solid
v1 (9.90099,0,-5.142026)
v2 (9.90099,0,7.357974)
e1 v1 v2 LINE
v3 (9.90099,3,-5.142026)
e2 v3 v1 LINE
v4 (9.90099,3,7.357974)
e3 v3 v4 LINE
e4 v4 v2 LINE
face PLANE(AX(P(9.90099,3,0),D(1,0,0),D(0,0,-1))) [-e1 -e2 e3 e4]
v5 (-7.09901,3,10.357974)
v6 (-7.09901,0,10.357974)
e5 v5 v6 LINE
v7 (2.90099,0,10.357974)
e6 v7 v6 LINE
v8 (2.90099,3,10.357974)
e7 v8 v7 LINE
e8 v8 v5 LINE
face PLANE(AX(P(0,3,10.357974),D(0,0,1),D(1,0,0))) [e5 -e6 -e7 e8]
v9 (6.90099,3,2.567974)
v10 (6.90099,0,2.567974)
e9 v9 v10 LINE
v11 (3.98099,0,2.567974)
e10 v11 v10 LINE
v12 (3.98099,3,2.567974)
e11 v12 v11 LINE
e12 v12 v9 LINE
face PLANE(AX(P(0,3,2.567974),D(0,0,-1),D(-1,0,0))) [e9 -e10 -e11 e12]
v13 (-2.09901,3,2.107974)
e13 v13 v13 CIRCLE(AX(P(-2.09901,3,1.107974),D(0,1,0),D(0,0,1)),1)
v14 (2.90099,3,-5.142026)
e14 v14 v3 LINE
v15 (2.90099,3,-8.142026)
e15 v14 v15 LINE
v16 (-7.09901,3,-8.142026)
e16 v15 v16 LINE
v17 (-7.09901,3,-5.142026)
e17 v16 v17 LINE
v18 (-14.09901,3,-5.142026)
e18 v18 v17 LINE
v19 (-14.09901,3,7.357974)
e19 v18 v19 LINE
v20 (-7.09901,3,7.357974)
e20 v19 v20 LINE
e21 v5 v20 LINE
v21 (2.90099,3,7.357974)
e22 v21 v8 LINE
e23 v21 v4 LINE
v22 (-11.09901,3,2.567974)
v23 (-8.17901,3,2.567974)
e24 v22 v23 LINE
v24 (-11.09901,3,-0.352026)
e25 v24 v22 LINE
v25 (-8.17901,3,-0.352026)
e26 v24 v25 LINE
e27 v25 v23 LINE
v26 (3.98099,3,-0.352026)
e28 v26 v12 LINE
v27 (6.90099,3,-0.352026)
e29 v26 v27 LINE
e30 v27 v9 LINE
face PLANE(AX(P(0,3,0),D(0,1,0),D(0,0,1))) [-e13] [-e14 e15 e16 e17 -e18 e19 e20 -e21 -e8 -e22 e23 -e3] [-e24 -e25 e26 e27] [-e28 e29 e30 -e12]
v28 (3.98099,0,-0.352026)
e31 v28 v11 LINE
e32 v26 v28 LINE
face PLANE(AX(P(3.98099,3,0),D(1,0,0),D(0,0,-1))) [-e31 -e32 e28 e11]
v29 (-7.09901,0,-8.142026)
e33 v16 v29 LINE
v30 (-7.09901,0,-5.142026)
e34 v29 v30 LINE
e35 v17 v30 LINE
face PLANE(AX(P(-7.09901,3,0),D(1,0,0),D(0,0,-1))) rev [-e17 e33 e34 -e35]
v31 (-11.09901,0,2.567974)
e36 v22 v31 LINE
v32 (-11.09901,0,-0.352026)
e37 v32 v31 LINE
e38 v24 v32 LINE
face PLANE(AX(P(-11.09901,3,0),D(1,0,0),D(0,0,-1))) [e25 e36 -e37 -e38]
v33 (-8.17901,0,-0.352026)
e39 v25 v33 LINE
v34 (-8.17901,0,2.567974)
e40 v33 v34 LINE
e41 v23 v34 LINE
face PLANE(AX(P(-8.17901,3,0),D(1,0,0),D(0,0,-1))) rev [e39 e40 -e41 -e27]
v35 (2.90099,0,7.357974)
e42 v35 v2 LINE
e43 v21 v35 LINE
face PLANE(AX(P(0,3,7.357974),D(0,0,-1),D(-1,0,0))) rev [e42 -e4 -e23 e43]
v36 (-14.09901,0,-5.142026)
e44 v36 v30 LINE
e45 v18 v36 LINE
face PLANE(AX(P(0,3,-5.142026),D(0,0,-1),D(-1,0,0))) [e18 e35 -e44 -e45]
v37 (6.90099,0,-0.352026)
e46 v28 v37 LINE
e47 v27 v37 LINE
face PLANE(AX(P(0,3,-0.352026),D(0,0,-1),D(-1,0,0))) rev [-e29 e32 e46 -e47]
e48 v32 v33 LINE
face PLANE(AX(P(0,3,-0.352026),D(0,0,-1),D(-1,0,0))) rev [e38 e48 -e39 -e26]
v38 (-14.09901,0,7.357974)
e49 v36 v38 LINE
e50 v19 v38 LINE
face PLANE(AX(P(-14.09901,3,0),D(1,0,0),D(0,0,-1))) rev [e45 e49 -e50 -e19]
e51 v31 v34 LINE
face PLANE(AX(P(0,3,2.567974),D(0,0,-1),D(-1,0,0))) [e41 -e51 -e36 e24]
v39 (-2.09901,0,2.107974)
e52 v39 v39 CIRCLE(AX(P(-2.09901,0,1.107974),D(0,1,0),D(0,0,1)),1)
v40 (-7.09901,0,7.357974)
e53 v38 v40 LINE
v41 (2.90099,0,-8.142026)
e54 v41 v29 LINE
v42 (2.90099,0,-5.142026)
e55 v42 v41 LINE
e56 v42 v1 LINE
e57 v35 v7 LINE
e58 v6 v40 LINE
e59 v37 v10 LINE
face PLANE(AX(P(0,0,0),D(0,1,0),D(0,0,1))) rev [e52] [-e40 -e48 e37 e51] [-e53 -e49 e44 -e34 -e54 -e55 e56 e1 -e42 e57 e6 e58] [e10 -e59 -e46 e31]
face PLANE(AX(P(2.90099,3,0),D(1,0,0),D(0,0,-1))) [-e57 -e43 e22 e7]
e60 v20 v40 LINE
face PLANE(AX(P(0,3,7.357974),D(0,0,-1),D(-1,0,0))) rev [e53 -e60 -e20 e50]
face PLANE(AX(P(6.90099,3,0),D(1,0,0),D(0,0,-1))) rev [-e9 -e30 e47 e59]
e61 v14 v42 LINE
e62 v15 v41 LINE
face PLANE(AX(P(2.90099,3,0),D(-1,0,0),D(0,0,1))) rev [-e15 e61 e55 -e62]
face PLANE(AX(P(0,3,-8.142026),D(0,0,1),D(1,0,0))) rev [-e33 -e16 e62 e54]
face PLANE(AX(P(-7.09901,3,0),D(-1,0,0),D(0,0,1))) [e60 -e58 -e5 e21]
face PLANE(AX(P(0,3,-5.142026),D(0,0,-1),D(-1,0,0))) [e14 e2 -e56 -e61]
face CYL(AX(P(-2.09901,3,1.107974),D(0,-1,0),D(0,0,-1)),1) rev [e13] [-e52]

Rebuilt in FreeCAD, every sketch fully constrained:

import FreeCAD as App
import Part
import Sketcher

V = App.Vector

doc = App.newDocument("Part")
params = doc.addObject("Spreadsheet::Sheet", "Params")
for row, (alias, value) in enumerate([
    ("sketch1_diameter", "2 mm"),
    ("sketch1_width", "7 mm"),
    ("sketch1_width2", "10 mm"),
    ("sketch1_height", "3 mm"),
    ("sketch1_height2", "12.5 mm"),
    ("pad1_length", "3 mm"),
], start=1):
    params.set(f"A{row}", alias)
    params.set(f"B{row}", "=" + value)
    params.setAlias(f"B{row}", alias)

body = doc.addObject("PartDesign::Body", "Body")

# Sketch on XZ plane
sketch1 = doc.addObject("Sketcher::SketchObject", "Sketch")
body.addObject(sketch1)
sketch1.AttachmentSupport = (doc.XZ_Plane, [""])
sketch1.MapMode = "FlatFace"
sketch1.addGeometry(Part.LineSegment(V(9.9, 7.4, 0), V(9.9, -5.1, 0)), False)
sketch1.addGeometry(Part.LineSegment(V(9.9, -5.1, 0), V(2.9, -5.1, 0)), False)
sketch1.addGeometry(Part.LineSegment(V(2.9, -5.1, 0), V(2.9, -8.1, 0)), False)
sketch1.addGeometry(Part.LineSegment(V(2.9, -8.1, 0), V(-7.1, -8.1, 0)), False)
sketch1.addGeometry(Part.LineSegment(V(-7.1, -8.1, 0), V(-7.1, -5.1, 0)), False)
sketch1.addGeometry(Part.LineSegment(V(-7.1, -5.1, 0), V(-14.1, -5.1, 0)), False)
sketch1.addGeometry(Part.LineSegment(V(-14.1, -5.1, 0), V(-14.1, 7.4, 0)), False)
sketch1.addGeometry(Part.LineSegment(V(-14.1, 7.4, 0), V(-7.1, 7.4, 0)), False)
sketch1.addGeometry(Part.LineSegment(V(-7.1, 7.4, 0), V(-7.1, 10.4, 0)), False)
sketch1.addGeometry(Part.LineSegment(V(-7.1, 10.4, 0), V(2.9, 10.4, 0)), False)
sketch1.addGeometry(Part.LineSegment(V(2.9, 10.4, 0), V(2.9, 7.4, 0)), False)
sketch1.addGeometry(Part.LineSegment(V(2.9, 7.4, 0), V(9.9, 7.4, 0)), False)
sketch1.addGeometry(Part.LineSegment(V(6.9, 2.6, 0), V(4, 2.6, 0)), False)
sketch1.addGeometry(Part.LineSegment(V(4, 2.6, 0), V(4, -0.4, 0)), False)
sketch1.addGeometry(Part.LineSegment(V(4, -0.4, 0), V(6.9, -0.4, 0)), False)
sketch1.addGeometry(Part.LineSegment(V(6.9, -0.4, 0), V(6.9, 2.6, 0)), False)
sketch1.addGeometry(Part.Circle(V(-2.1, 1.1, 0), V(0, 0, 1), 1), False)
sketch1.addGeometry(Part.LineSegment(V(-8.2, 2.6, 0), V(-11.1, 2.6, 0)), False)
sketch1.addGeometry(Part.LineSegment(V(-11.1, 2.6, 0), V(-11.1, -0.4, 0)), False)
sketch1.addGeometry(Part.LineSegment(V(-11.1, -0.4, 0), V(-8.2, -0.4, 0)), False)
sketch1.addGeometry(Part.LineSegment(V(-8.2, -0.4, 0), V(-8.2, 2.6, 0)), False)
sketch1.addConstraint(Sketcher.Constraint("Coincident", 0, 2, 1, 1))
sketch1.addConstraint(Sketcher.Constraint("Coincident", 1, 2, 2, 1))
sketch1.addConstraint(Sketcher.Constraint("Coincident", 2, 2, 3, 1))
sketch1.addConstraint(Sketcher.Constraint("Coincident", 3, 2, 4, 1))
sketch1.addConstraint(Sketcher.Constraint("Coincident", 4, 2, 5, 1))
sketch1.addConstraint(Sketcher.Constraint("Coincident", 5, 2, 6, 1))
sketch1.addConstraint(Sketcher.Constraint("Coincident", 6, 2, 7, 1))
sketch1.addConstraint(Sketcher.Constraint("Coincident", 7, 2, 8, 1))
sketch1.addConstraint(Sketcher.Constraint("Coincident", 8, 2, 9, 1))
sketch1.addConstraint(Sketcher.Constraint("Coincident", 9, 2, 10, 1))
sketch1.addConstraint(Sketcher.Constraint("Coincident", 10, 2, 11, 1))
sketch1.addConstraint(Sketcher.Constraint("Coincident", 11, 2, 0, 1))
sketch1.addConstraint(Sketcher.Constraint("Coincident", 12, 2, 13, 1))
sketch1.addConstraint(Sketcher.Constraint("Coincident", 13, 2, 14, 1))
sketch1.addConstraint(Sketcher.Constraint("Coincident", 14, 2, 15, 1))
sketch1.addConstraint(Sketcher.Constraint("Coincident", 15, 2, 12, 1))
sketch1.addConstraint(Sketcher.Constraint("Coincident", 17, 2, 18, 1))
sketch1.addConstraint(Sketcher.Constraint("Coincident", 18, 2, 19, 1))
sketch1.addConstraint(Sketcher.Constraint("Coincident", 19, 2, 20, 1))
sketch1.addConstraint(Sketcher.Constraint("Coincident", 20, 2, 17, 1))
sketch1.addConstraint(Sketcher.Constraint("Vertical", 0))
sketch1.addConstraint(Sketcher.Constraint("Horizontal", 1))
sketch1.addConstraint(Sketcher.Constraint("Vertical", 2))
sketch1.addConstraint(Sketcher.Constraint("Horizontal", 3))
sketch1.addConstraint(Sketcher.Constraint("Vertical", 4))
sketch1.addConstraint(Sketcher.Constraint("Horizontal", 5))
sketch1.addConstraint(Sketcher.Constraint("Vertical", 6))
sketch1.addConstraint(Sketcher.Constraint("Horizontal", 7))
sketch1.addConstraint(Sketcher.Constraint("Vertical", 8))
sketch1.addConstraint(Sketcher.Constraint("Horizontal", 9))
sketch1.addConstraint(Sketcher.Constraint("Vertical", 10))
sketch1.addConstraint(Sketcher.Constraint("Horizontal", 11))
sketch1.addConstraint(Sketcher.Constraint("Horizontal", 12))
sketch1.addConstraint(Sketcher.Constraint("Vertical", 13))
sketch1.addConstraint(Sketcher.Constraint("Horizontal", 14))
sketch1.addConstraint(Sketcher.Constraint("Vertical", 15))
sketch1.addConstraint(Sketcher.Constraint("Horizontal", 17))
sketch1.addConstraint(Sketcher.Constraint("Vertical", 18))
sketch1.addConstraint(Sketcher.Constraint("Horizontal", 19))
sketch1.addConstraint(Sketcher.Constraint("Vertical", 20))
sketch1.addConstraint(Sketcher.Constraint("Horizontal", 1, 2, 4, 2))
sketch1.addConstraint(Sketcher.Constraint("Horizontal", 7, 2, 10, 2))
sketch1.addConstraint(Sketcher.Constraint("Horizontal", 15, 2, 17, 2))
sketch1.addConstraint(Sketcher.Constraint("Horizontal", 14, 2, 18, 2))
sketch1.addConstraint(Sketcher.Constraint("Vertical", 4, 2, 7, 2))
sketch1.addConstraint(Sketcher.Constraint("Vertical", 2, 2, 9, 2))
sketch1.addConstraint(Sketcher.Constraint("Equal", 1, 5))
sketch1.addConstraint(Sketcher.Constraint("Equal", 14, 17))
sketch1.addConstraint(Sketcher.Constraint("Equal", 4, 8))
sketch1.addConstraint(Sketcher.Constraint("Equal", 19, 13))
sketch1.addConstraint(Sketcher.Constraint("Diameter", 16, 2.0))
sketch1.addConstraint(Sketcher.Constraint("DistanceX", 1, 2, 1, 1, 7.0))
sketch1.addConstraint(Sketcher.Constraint("DistanceX", 3, 2, 3, 1, 10.0))
sketch1.addConstraint(Sketcher.Constraint("DistanceY", 2, 2, 2, 1, 3.0))
sketch1.addConstraint(Sketcher.Constraint("DistanceY", 0, 2, 0, 1, 12.5))
sketch1.addConstraint(Sketcher.Constraint("DistanceX", 16, 3, 0, 2, 12.0))
sketch1.addConstraint(Sketcher.Constraint("DistanceX", 14, 2, 0, 2, 3.0))
sketch1.addConstraint(Sketcher.Constraint("DistanceX", 6, 2, 17, 2, 3.0))
sketch1.addConstraint(Sketcher.Constraint("DistanceX", 12, 2, 12, 1, 2.92))
sketch1.addConstraint(Sketcher.Constraint("DistanceY", 0, 2, 16, 3, 6.25))
sketch1.addConstraint(Sketcher.Constraint("DistanceY", 12, 2, 10, 2, 4.79))
sketch1.addConstraint(Sketcher.Constraint("DistanceX", 16, 3, -1, 1, 2.09901))
sketch1.addConstraint(Sketcher.Constraint("DistanceY", -1, 1, 16, 3, 1.107974))
sketch1.setExpression("Constraints[50]", "Params.sketch1_diameter")
sketch1.setExpression("Constraints[51]", "Params.sketch1_width")
sketch1.setExpression("Constraints[52]", "Params.sketch1_width2")
sketch1.setExpression("Constraints[53]", "Params.sketch1_height")
sketch1.setExpression("Constraints[54]", "Params.sketch1_height2")
pad1 = doc.addObject("PartDesign::Pad", "Pad")
body.addObject(pad1)
pad1.Profile = sketch1
pad1.setExpression("Length", "Params.pad1_length")
pad1.Reversed = True

doc.recompute()
